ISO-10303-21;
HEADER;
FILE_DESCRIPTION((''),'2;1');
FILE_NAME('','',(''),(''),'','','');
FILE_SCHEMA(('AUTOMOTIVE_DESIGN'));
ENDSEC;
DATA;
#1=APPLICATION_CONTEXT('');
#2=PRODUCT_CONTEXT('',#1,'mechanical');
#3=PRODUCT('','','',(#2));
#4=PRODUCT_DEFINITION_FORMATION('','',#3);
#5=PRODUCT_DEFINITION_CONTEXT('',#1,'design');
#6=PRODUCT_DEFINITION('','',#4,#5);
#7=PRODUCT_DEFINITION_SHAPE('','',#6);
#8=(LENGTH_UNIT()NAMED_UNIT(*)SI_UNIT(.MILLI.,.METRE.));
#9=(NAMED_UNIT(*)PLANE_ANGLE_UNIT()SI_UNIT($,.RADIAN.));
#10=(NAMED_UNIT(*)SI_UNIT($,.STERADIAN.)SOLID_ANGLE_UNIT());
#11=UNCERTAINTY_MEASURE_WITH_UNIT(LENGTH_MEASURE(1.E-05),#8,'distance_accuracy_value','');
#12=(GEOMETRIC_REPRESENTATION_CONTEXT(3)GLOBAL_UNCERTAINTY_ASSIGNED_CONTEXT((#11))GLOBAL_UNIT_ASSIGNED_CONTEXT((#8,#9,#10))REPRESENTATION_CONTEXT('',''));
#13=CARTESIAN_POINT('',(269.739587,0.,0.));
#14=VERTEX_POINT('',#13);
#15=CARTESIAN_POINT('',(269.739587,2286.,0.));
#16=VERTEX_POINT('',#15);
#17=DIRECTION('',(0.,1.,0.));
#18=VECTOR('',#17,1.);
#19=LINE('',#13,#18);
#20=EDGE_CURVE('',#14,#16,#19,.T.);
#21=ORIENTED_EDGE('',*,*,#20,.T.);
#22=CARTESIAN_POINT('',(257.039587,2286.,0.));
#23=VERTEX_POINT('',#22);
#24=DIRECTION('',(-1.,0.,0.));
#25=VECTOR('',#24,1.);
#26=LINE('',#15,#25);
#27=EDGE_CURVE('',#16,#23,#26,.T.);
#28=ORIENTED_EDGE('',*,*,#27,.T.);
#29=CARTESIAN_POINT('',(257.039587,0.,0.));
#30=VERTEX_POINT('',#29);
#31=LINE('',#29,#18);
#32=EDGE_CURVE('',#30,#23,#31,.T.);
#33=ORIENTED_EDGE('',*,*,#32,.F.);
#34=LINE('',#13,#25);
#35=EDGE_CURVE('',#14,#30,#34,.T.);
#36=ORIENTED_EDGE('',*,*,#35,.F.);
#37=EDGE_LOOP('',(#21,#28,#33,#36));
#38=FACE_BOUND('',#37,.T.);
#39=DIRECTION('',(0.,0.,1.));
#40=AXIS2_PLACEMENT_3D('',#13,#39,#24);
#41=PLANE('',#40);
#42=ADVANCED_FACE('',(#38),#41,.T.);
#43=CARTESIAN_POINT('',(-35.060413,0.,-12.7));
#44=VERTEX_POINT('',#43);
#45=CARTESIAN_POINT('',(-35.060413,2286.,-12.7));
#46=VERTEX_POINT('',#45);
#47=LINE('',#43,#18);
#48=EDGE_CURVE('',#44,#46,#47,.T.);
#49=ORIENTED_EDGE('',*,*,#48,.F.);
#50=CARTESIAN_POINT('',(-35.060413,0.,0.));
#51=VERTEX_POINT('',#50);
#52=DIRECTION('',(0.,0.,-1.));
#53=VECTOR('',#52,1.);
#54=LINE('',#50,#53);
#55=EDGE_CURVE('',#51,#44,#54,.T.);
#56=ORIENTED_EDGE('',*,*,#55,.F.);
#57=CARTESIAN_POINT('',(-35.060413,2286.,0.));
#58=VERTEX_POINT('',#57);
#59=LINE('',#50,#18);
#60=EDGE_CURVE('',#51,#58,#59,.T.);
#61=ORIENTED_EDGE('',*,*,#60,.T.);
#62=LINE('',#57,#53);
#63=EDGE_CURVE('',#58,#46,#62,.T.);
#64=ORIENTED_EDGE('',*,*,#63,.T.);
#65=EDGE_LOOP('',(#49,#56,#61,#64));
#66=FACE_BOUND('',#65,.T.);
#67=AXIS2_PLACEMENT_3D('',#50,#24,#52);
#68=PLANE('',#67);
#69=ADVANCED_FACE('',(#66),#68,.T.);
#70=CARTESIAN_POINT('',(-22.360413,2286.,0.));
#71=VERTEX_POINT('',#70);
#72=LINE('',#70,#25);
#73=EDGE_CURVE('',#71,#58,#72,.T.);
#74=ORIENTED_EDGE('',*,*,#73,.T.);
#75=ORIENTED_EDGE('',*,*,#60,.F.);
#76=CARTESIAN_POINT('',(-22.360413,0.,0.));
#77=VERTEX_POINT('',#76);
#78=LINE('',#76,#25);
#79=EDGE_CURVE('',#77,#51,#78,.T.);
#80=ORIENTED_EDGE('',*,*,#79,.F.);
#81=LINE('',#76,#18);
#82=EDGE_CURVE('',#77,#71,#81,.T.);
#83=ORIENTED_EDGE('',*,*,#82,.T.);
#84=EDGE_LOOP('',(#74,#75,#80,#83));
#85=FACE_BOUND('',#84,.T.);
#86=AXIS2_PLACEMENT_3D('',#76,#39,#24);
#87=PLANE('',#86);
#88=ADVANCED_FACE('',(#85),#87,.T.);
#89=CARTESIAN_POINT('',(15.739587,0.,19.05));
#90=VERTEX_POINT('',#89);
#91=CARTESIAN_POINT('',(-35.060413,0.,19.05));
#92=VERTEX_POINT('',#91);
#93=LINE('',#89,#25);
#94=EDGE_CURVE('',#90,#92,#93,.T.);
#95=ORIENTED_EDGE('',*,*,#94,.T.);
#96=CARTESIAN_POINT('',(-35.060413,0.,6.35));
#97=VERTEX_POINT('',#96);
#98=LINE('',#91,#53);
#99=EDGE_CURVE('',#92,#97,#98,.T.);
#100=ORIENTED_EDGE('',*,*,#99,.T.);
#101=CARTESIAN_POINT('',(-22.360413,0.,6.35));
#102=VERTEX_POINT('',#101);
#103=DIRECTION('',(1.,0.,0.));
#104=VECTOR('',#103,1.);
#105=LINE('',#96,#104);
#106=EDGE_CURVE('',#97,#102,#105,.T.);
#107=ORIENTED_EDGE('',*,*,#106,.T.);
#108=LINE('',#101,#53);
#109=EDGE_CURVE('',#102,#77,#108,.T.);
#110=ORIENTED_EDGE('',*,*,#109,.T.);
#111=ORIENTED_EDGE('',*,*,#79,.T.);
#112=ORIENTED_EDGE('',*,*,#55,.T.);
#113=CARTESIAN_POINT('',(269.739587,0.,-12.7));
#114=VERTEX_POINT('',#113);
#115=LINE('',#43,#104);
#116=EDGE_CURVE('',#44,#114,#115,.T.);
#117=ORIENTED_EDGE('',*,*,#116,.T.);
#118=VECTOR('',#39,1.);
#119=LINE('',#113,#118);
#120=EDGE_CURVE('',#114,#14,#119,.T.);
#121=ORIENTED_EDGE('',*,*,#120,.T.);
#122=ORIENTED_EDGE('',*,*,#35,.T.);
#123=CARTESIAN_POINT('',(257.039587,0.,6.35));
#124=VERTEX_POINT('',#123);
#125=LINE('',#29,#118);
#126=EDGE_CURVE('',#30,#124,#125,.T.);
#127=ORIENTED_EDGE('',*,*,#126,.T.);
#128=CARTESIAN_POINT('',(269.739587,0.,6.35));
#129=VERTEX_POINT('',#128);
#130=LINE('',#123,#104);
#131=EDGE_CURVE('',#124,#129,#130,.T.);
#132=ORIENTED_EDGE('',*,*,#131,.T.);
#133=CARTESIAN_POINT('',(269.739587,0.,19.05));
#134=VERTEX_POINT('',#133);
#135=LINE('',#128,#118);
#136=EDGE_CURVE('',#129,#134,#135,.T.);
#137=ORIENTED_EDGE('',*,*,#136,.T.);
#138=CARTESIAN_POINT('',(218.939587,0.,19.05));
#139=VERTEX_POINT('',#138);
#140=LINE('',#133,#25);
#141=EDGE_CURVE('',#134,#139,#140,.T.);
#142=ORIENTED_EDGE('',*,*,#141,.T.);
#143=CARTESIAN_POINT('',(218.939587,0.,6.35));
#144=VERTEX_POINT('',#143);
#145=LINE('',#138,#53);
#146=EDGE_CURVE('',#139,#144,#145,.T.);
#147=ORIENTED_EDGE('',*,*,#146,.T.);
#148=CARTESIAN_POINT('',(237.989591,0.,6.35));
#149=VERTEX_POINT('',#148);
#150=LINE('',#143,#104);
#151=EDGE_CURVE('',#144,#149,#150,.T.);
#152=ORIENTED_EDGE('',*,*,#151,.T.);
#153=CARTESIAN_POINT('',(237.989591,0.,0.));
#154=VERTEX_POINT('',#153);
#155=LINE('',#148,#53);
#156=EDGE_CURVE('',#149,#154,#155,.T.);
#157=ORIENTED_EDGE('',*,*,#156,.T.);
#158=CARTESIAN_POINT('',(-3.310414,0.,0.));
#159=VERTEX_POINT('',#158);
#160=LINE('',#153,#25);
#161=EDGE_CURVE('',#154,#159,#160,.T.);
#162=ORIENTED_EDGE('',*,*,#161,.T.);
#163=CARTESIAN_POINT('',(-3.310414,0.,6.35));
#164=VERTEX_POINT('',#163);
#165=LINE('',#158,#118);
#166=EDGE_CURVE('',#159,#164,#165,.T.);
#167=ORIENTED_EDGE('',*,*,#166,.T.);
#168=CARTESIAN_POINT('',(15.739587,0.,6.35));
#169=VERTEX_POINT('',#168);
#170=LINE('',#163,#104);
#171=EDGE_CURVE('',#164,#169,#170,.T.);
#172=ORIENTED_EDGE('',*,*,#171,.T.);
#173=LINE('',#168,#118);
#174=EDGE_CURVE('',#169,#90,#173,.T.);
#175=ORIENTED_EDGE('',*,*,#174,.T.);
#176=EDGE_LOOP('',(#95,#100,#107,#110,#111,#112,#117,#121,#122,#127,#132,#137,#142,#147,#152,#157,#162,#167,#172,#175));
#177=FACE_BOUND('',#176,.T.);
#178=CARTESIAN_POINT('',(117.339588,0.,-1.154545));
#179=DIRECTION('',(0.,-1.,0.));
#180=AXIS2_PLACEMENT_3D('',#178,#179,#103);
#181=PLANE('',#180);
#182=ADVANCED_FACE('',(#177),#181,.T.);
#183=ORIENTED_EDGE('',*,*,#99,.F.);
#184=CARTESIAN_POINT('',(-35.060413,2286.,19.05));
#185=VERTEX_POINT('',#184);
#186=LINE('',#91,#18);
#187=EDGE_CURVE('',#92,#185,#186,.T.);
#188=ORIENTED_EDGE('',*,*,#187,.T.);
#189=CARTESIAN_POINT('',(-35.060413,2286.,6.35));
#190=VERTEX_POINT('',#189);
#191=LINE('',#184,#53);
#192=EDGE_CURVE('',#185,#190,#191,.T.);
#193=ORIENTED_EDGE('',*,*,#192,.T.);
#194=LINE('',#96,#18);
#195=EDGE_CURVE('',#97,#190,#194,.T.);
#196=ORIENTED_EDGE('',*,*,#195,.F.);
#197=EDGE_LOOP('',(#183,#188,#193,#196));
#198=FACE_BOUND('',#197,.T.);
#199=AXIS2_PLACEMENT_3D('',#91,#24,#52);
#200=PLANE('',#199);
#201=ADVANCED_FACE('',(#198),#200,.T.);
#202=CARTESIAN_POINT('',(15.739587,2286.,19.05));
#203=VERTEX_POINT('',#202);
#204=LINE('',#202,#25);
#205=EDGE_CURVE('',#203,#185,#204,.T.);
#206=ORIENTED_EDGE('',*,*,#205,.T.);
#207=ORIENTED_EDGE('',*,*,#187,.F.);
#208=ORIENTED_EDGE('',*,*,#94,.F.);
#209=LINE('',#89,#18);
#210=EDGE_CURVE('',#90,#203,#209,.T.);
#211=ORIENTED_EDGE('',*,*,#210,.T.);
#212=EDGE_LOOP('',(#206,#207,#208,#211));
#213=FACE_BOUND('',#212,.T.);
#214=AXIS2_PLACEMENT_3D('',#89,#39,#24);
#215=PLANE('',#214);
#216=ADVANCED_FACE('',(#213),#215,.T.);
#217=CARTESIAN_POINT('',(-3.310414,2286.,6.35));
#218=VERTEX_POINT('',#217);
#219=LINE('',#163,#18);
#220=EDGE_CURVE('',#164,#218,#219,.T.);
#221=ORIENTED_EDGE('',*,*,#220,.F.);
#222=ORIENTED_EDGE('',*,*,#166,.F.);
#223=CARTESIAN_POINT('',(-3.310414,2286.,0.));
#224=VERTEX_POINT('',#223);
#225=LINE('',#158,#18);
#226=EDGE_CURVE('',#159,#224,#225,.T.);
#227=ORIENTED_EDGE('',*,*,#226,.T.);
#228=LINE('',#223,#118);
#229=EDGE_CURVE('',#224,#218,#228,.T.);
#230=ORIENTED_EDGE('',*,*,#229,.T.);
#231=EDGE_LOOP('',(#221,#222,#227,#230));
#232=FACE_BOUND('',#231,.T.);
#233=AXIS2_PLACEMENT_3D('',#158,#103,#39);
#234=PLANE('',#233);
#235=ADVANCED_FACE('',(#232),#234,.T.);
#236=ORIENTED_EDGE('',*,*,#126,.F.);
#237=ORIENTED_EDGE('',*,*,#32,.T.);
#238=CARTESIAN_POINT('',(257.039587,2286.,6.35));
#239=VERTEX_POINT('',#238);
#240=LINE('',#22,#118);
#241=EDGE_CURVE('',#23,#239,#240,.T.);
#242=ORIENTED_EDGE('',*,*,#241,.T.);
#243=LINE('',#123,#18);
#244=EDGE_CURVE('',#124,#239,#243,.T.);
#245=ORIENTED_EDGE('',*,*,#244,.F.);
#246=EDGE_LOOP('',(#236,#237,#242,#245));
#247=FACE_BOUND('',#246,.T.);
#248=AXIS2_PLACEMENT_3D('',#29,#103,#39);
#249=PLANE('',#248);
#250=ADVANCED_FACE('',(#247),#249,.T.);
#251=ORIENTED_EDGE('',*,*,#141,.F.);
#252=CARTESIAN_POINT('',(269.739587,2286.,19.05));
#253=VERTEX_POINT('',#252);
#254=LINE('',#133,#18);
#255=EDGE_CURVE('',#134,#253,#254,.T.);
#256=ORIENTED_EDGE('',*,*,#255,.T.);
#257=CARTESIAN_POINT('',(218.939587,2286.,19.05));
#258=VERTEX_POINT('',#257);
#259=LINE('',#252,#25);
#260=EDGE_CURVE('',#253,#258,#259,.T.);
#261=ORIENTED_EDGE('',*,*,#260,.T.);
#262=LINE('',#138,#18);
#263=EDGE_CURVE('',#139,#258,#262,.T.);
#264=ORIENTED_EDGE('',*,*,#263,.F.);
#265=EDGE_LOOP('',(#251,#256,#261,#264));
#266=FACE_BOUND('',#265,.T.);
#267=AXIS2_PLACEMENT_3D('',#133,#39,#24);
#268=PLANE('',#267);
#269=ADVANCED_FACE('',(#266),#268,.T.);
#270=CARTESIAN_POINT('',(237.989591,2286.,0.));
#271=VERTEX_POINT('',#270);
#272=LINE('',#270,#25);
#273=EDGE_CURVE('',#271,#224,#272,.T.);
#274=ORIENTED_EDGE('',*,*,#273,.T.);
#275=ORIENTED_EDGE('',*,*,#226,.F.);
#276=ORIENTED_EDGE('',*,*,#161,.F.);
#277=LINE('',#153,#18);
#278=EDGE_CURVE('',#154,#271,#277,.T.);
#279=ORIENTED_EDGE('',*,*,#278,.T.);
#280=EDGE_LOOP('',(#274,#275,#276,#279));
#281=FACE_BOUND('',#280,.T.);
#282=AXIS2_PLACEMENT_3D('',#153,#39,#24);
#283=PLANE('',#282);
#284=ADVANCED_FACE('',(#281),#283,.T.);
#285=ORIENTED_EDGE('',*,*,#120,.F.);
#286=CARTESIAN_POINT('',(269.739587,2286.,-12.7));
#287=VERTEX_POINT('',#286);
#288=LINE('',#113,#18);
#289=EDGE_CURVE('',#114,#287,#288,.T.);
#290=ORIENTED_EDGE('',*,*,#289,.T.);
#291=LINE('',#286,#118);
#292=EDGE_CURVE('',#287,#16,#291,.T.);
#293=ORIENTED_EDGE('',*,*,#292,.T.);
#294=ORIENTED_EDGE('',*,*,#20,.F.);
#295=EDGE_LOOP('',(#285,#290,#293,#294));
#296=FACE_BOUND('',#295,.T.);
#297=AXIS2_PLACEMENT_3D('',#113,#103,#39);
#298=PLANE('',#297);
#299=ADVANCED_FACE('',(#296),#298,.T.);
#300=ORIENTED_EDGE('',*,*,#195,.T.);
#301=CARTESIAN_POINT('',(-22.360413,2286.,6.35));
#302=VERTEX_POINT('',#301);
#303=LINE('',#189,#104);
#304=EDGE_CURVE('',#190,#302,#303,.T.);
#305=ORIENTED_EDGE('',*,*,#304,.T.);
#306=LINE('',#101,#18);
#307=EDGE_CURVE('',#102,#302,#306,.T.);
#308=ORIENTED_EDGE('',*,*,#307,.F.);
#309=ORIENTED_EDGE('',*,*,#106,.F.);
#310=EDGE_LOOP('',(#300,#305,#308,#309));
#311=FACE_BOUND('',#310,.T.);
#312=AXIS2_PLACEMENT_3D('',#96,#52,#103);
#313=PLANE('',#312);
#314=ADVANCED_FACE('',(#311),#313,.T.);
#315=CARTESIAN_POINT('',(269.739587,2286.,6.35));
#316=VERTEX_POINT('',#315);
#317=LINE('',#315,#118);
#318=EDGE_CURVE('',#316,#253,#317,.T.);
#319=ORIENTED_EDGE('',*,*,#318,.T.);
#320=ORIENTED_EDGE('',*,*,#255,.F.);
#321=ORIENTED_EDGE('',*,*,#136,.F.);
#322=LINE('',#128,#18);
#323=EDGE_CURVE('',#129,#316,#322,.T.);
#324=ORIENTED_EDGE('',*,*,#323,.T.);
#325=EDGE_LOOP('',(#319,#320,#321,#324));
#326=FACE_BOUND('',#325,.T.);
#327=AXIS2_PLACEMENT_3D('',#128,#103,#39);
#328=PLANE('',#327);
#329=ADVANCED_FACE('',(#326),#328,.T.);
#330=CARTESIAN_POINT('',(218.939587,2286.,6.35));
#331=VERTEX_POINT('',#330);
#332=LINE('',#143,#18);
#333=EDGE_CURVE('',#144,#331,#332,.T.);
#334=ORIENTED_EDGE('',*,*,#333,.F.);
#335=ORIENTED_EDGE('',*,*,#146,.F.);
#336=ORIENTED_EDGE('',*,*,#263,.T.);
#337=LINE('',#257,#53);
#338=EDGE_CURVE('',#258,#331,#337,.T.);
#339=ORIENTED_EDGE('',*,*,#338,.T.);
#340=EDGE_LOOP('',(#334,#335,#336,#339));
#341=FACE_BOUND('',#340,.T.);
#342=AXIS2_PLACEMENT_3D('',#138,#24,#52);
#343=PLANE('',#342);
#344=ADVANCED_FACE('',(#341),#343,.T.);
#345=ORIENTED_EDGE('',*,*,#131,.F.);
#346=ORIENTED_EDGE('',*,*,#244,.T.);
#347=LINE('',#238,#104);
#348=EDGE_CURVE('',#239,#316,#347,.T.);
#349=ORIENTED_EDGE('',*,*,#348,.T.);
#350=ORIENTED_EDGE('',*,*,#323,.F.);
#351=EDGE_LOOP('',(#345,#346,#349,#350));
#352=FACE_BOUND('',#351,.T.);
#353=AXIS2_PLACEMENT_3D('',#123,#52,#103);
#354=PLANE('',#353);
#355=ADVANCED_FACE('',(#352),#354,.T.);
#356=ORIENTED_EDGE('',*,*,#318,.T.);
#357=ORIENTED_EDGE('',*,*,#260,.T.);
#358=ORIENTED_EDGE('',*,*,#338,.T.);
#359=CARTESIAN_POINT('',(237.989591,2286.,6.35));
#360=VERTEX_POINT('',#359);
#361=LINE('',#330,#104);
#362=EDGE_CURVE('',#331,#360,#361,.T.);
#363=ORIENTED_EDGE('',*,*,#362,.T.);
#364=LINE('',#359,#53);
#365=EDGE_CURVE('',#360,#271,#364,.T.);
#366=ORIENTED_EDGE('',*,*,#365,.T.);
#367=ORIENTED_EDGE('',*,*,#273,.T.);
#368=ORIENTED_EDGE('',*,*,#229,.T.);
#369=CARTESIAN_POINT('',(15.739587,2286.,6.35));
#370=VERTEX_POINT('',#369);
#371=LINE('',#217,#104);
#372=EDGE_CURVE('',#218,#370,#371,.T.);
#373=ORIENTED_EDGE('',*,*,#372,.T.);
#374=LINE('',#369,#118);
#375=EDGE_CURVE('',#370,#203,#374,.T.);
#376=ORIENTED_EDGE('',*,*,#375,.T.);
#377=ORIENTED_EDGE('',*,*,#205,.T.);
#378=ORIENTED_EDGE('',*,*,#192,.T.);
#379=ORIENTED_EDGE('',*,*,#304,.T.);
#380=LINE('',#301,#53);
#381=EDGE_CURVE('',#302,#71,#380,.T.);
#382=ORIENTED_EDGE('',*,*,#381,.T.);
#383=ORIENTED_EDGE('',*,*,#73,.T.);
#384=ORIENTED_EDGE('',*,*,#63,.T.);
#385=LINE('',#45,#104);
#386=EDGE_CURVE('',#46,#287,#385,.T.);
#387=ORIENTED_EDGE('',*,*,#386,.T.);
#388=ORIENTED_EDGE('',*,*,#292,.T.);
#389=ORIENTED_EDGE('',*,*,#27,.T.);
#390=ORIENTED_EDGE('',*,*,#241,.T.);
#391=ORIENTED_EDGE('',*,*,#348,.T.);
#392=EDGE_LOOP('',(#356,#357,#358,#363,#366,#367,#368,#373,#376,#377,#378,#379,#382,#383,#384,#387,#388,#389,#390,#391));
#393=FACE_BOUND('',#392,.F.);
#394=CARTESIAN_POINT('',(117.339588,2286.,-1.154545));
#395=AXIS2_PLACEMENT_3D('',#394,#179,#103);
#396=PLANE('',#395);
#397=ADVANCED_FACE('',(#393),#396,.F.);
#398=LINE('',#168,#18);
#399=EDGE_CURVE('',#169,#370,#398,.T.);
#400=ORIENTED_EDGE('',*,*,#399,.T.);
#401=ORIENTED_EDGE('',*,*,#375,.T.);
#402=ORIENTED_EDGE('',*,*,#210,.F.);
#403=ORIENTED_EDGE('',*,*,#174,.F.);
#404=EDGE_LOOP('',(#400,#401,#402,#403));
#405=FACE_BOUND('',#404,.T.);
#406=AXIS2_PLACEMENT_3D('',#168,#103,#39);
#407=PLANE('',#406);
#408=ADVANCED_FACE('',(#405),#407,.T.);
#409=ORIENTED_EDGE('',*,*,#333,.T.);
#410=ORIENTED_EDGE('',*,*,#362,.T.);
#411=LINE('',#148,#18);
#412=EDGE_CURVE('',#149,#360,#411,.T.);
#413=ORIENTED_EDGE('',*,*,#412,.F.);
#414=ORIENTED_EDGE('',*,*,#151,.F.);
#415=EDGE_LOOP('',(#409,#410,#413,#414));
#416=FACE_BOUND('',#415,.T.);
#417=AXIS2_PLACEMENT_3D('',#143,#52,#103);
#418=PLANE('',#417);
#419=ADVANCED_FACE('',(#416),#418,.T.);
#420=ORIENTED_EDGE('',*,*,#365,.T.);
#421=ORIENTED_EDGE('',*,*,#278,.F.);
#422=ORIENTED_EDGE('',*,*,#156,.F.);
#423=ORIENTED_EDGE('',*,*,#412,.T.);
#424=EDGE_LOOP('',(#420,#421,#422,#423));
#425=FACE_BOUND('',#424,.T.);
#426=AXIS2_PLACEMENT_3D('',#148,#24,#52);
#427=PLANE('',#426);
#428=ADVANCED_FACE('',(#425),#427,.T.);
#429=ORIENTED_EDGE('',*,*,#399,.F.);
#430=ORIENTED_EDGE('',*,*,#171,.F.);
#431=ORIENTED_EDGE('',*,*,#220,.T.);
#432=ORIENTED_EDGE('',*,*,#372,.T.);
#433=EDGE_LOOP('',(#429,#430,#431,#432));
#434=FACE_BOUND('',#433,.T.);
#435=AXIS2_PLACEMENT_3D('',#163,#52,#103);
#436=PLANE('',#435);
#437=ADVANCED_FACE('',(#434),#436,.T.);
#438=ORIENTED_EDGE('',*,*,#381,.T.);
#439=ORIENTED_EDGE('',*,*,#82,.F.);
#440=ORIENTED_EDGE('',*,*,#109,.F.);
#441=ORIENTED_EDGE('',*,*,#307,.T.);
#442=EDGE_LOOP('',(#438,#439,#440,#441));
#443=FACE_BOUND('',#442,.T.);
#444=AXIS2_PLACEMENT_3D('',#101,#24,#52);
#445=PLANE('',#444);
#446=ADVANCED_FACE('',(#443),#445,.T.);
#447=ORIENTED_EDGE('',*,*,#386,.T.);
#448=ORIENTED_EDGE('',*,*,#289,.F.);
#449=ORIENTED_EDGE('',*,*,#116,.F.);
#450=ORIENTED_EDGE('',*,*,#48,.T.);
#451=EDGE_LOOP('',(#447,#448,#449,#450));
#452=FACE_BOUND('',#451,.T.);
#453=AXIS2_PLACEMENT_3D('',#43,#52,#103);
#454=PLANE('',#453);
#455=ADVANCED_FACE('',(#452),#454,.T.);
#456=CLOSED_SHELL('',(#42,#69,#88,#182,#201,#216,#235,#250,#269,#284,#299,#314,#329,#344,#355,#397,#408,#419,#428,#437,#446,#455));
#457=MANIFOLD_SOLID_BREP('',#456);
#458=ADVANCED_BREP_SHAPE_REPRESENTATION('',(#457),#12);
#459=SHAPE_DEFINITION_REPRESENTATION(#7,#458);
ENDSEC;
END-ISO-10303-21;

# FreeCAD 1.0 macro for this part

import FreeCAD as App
import Part
import Sketcher
from FreeCAD import Vector
Q = App.Units.Quantity

doc = App.newDocument("Part")
params = doc.addObject("Spreadsheet::Sheet", "Params")
for row, (alias, value) in enumerate([
    ("sketch1_width", "12 in"),
    ("sketch1_width2", "2 in"),
    ("sketch1_width3", "0.5 in"),
    ("sketch1_width4", "9.5000002 in"),
    ("sketch1_width5", "0.7500002 in"),
    ("pad1_length", "90 in"),
], start=1):
    params.set(f"A{row}", alias)
    params.set(f"B{row}", "=" + value)
    params.setAlias(f"B{row}", alias)

body = doc.addObject("PartDesign::Body", "Body")

sketch1 = body.newObject("Sketcher::SketchObject", "Sketch")
sketch1.AttachmentSupport = (doc.getObject("XZ_Plane"), [""])
sketch1.MapMode = "FlatFace"
sketch1.addGeometry([
    Part.LineSegment(Vector(-35, 0, 0), Vector(-35, -13, 0)),
    Part.LineSegment(Vector(-35, -13, 0), Vector(270, -13, 0)),
    Part.LineSegment(Vector(270, -13, 0), Vector(270, 0, 0)),
    Part.LineSegment(Vector(270, 0, 0), Vector(257, 0, 0)),
    Part.LineSegment(Vector(257, 0, 0), Vector(257, 6, 0)),
    Part.LineSegment(Vector(257, 6, 0), Vector(270, 6, 0)),
    Part.LineSegment(Vector(270, 6, 0), Vector(270, 19, 0)),
    Part.LineSegment(Vector(270, 19, 0), Vector(219, 19, 0)),
    Part.LineSegment(Vector(219, 19, 0), Vector(219, 6, 0)),
    Part.LineSegment(Vector(219, 6, 0), Vector(238, 6, 0)),
    Part.LineSegment(Vector(238, 6, 0), Vector(238, 0, 0)),
    Part.LineSegment(Vector(238, 0, 0), Vector(-3, 0, 0)),
    Part.LineSegment(Vector(-3, 0, 0), Vector(-3, 6, 0)),
    Part.LineSegment(Vector(-3, 6, 0), Vector(16, 6, 0)),
    Part.LineSegment(Vector(16, 6, 0), Vector(16, 19, 0)),
    Part.LineSegment(Vector(16, 19, 0), Vector(-35, 19, 0)),
    Part.LineSegment(Vector(-35, 19, 0), Vector(-35, 6, 0)),
    Part.LineSegment(Vector(-35, 6, 0), Vector(-22, 6, 0)),
    Part.LineSegment(Vector(-22, 6, 0), Vector(-22, 0, 0)),
    Part.LineSegment(Vector(-22, 0, 0), Vector(-35, 0, 0)),
], False)
sketch1.addConstraint([
    Sketcher.Constraint("Coincident", 0, 2, 1, 1),
    Sketcher.Constraint("Coincident", 1, 2, 2, 1),
    Sketcher.Constraint("Coincident", 2, 2, 3, 1),
    Sketcher.Constraint("Coincident", 3, 2, 4, 1),
    Sketcher.Constraint("Coincident", 4, 2, 5, 1),
    Sketcher.Constraint("Coincident", 5, 2, 6, 1),
    Sketcher.Constraint("Coincident", 6, 2, 7, 1),
    Sketcher.Constraint("Coincident", 7, 2, 8, 1),
    Sketcher.Constraint("Coincident", 8, 2, 9, 1),
    Sketcher.Constraint("Coincident", 9, 2, 10, 1),
    Sketcher.Constraint("Coincident", 10, 2, 11, 1),
    Sketcher.Constraint("Coincident", 11, 2, 12, 1),
    Sketcher.Constraint("Coincident", 12, 2, 13, 1),
    Sketcher.Constraint("Coincident", 13, 2, 14, 1),
    Sketcher.Constraint("Coincident", 14, 2, 15, 1),
    Sketcher.Constraint("Coincident", 15, 2, 16, 1),
    Sketcher.Constraint("Coincident", 16, 2, 17, 1),
    Sketcher.Constraint("Coincident", 17, 2, 18, 1),
    Sketcher.Constraint("Coincident", 18, 2, 19, 1),
    Sketcher.Constraint("Coincident", 19, 2, 0, 1),
    Sketcher.Constraint("Vertical", 0),
    Sketcher.Constraint("Horizontal", 1),
    Sketcher.Constraint("Vertical", 2),
    Sketcher.Constraint("Horizontal", 3),
    Sketcher.Constraint("Vertical", 4),
    Sketcher.Constraint("Horizontal", 5),
    Sketcher.Constraint("Vertical", 6),
    Sketcher.Constraint("Horizontal", 7),
    Sketcher.Constraint("Vertical", 8),
    Sketcher.Constraint("Horizontal", 9),
    Sketcher.Constraint("Vertical", 10),
    Sketcher.Constraint("Horizontal", 11),
    Sketcher.Constraint("Vertical", 12),
    Sketcher.Constraint("Horizontal", 13),
    Sketcher.Constraint("Vertical", 14),
    Sketcher.Constraint("Horizontal", 15),
    Sketcher.Constraint("Vertical", 16),
    Sketcher.Constraint("Horizontal", 17),
    Sketcher.Constraint("Vertical", 18),
    Sketcher.Constraint("Horizontal", 19),
    Sketcher.Constraint("PointOnObject", 2, 2, -1),
    Sketcher.Constraint("PointOnObject", 10, 2, -1),
    Sketcher.Constraint("PointOnObject", 18, 2, -1),
    Sketcher.Constraint("Horizontal", 5, 2, 8, 2),
    Sketcher.Constraint("Horizontal", 9, 2, 12, 2),
    Sketcher.Constraint("Horizontal", 7, 2, 14, 2),
    Sketcher.Constraint("Horizontal", 13, 2, 16, 2),
    Sketcher.Constraint("Vertical", 2, 2, 5, 2),
    Sketcher.Constraint("Vertical", 0, 2, 15, 2),
    Sketcher.Constraint("Equal", 7, 15),
    Sketcher.Constraint("Equal", 5, 17),
    Sketcher.Constraint("Equal", 19, 0),
    Sketcher.Constraint("Equal", 2, 6),
    Sketcher.Constraint("DistanceX", 1, 1, 1, 2, Q("12 in")),
    Sketcher.Constraint("DistanceX", 7, 2, 7, 1, Q("2 in")),
    Sketcher.Constraint("DistanceX", 3, 2, 3, 1, Q("0.5 in")),
    Sketcher.Constraint("DistanceX", 11, 2, 11, 1, Q("9.5000002 in")),
    Sketcher.Constraint("DistanceX", 9, 1, 9, 2, Q("0.7500002 in")),
    Sketcher.Constraint("DistanceY", 4, 1, 4, 2, Q("0.25 in")),
    Sketcher.Constraint("DistanceX", -1, 1, 9, 2, Q("237.989591 mm")),
])
sketch1.setExpression("Constraints[53]", "Params.sketch1_width")
sketch1.setExpression("Constraints[54]", "Params.sketch1_width2")
sketch1.setExpression("Constraints[55]", "Params.sketch1_width3")
sketch1.setExpression("Constraints[56]", "Params.sketch1_width4")
sketch1.setExpression("Constraints[57]", "Params.sketch1_width5")
pad1 = body.newObject("PartDesign::Pad", "Pad")
pad1.Profile = sketch1
pad1.setExpression("Length", "Params.pad1_length")
pad1.Reversed = True

doc.recompute()
